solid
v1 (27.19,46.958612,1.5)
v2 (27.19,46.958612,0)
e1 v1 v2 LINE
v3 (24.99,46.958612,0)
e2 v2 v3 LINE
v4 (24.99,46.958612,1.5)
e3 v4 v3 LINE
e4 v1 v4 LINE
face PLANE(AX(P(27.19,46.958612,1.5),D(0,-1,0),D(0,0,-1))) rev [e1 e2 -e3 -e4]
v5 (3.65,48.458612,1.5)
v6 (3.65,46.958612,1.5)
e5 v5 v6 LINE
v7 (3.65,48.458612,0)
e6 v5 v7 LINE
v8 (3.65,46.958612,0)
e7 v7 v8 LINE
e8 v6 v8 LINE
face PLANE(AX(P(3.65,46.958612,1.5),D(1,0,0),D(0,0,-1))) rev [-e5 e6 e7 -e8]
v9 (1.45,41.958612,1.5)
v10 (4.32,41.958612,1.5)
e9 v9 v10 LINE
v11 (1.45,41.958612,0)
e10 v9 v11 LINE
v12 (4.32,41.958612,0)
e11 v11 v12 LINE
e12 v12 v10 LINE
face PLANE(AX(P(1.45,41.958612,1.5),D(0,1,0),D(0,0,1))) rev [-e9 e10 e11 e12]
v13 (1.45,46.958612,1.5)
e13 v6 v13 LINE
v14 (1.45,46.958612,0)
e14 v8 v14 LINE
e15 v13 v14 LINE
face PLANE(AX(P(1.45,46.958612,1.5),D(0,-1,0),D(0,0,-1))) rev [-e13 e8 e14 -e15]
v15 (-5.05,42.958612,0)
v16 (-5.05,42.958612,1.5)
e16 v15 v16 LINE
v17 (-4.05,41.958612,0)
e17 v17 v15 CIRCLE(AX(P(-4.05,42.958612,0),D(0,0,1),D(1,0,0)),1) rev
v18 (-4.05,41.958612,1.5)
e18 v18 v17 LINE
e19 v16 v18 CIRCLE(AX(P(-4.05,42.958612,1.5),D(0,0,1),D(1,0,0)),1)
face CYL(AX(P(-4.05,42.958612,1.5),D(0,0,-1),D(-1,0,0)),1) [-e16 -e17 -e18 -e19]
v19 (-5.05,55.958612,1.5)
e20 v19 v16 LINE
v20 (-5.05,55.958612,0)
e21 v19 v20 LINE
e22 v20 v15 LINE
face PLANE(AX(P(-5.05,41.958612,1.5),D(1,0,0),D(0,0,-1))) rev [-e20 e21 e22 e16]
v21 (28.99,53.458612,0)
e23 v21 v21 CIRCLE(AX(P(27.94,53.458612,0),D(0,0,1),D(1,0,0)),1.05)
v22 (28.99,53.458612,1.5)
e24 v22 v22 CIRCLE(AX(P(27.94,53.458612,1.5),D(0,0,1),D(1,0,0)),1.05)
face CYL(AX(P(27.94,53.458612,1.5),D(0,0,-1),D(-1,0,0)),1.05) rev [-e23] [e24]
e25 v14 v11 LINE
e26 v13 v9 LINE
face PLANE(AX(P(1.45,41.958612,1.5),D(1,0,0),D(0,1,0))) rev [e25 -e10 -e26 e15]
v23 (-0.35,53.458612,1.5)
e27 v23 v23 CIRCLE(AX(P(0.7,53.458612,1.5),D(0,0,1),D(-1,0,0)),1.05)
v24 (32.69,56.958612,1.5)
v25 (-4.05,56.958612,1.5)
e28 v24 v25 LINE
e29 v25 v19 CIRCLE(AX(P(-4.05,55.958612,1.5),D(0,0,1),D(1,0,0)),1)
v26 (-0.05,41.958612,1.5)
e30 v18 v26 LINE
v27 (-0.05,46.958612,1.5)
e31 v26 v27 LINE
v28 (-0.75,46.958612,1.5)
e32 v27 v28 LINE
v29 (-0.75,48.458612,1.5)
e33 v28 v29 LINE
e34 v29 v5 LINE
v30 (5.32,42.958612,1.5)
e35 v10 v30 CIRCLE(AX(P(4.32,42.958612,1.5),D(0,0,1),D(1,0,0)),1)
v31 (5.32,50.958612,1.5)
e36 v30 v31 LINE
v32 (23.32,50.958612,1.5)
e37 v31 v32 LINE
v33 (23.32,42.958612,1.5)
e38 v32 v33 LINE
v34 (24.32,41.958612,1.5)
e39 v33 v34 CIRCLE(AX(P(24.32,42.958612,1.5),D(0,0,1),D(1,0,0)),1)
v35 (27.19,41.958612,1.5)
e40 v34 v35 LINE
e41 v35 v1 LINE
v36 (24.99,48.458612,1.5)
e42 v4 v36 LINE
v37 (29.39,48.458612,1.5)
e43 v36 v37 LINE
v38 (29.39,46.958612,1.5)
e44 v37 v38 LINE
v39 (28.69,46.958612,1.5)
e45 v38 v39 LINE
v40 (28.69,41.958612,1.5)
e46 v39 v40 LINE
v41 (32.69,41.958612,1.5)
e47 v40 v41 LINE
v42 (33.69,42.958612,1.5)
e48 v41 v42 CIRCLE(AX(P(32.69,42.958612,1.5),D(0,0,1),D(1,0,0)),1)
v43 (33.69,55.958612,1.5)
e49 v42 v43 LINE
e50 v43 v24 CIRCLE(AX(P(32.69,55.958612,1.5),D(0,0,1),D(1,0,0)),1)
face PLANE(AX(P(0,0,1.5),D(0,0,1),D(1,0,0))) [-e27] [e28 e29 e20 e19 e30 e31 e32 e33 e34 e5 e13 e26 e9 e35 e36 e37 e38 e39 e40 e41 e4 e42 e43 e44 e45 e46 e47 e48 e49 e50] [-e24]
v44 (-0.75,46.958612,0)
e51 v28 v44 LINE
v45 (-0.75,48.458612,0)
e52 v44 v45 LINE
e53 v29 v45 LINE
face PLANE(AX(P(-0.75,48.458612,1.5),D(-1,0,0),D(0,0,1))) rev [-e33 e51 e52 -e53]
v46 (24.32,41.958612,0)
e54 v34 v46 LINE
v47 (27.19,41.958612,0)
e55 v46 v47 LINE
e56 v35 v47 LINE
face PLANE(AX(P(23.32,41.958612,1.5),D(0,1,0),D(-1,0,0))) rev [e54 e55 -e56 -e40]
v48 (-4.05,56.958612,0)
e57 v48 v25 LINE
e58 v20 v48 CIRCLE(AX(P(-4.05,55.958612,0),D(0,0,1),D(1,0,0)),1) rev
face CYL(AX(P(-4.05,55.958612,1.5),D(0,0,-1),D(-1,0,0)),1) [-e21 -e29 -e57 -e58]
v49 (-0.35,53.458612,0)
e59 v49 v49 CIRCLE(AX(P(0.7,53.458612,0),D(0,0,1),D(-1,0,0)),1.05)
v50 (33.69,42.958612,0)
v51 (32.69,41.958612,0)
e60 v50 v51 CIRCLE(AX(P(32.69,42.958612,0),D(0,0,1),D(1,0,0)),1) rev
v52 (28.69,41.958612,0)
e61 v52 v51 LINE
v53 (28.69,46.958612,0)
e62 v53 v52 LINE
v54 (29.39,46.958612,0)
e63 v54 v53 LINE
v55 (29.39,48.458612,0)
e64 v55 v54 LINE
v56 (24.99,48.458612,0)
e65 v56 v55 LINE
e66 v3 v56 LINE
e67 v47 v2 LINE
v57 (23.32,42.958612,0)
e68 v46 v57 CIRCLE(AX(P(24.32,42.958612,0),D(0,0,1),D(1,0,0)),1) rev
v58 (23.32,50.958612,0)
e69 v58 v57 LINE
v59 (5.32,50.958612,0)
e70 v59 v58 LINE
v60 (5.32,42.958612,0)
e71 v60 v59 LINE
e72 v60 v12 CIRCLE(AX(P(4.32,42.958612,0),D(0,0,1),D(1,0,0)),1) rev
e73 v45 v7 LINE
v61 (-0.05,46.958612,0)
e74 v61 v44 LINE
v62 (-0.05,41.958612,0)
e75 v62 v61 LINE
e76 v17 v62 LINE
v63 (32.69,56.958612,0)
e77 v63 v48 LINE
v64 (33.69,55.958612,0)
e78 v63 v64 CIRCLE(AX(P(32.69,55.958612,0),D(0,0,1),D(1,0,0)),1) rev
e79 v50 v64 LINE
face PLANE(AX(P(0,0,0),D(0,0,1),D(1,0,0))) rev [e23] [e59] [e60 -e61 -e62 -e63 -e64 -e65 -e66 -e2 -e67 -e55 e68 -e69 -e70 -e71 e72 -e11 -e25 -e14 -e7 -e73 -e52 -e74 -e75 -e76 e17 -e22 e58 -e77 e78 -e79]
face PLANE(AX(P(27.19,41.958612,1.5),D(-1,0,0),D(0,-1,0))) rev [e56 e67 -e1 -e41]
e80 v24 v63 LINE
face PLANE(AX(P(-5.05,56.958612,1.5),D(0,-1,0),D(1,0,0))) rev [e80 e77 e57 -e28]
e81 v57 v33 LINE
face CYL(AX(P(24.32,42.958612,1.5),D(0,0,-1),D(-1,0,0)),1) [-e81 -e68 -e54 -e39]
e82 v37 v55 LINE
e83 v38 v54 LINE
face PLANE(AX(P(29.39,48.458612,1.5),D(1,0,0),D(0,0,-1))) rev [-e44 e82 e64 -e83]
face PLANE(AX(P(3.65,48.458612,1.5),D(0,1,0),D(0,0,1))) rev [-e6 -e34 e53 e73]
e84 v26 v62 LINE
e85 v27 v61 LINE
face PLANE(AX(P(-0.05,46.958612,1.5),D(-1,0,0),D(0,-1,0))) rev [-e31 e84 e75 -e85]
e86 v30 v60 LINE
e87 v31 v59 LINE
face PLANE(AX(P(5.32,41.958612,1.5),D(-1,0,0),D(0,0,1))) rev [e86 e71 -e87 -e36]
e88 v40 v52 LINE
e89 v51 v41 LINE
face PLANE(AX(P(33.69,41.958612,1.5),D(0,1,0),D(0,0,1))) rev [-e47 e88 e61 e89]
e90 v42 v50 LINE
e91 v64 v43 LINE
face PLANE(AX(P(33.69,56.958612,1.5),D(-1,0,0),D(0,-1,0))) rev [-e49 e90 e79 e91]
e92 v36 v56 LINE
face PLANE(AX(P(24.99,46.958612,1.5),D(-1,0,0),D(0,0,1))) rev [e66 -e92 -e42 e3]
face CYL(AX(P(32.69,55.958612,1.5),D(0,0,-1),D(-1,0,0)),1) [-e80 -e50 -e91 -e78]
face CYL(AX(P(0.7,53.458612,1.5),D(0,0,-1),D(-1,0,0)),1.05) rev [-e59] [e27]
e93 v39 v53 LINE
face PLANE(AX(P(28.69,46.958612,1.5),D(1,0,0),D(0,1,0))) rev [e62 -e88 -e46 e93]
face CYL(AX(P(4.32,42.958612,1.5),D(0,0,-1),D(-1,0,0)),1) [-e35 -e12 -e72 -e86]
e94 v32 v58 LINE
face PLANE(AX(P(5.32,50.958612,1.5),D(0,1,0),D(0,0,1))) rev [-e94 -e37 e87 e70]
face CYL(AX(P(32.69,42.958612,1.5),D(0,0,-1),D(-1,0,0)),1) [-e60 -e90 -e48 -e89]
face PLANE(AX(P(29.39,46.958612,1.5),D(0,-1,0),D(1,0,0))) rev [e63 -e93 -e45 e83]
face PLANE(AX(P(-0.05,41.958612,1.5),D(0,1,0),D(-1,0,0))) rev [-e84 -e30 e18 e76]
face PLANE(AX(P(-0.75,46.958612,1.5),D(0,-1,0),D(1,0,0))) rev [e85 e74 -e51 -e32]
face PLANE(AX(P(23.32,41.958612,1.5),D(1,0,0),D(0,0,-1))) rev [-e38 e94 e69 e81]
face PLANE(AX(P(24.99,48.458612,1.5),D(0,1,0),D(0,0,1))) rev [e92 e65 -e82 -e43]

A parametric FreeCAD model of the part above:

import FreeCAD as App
import Part
import Sketcher
Q = App.Units.Quantity


def edges_at(feature, points):
    """Names of the edges that pass closest to the given points."""
    edges = feature.Shape.Edges
    near = lambda p: min(range(len(edges)), key=lambda i: edges[i].distToShape(Part.Vertex(*p))[0])
    return sorted({f"Edge{near(p) + 1}" for p in points})


def add_polygon(sketch, points):
    """Adds a closed chain of lines whose ends are joined by coincident constraints."""
    first, n = sketch.GeometryCount, len(points)
    for a, b in zip(points, points[1:] + points[:1]):
        sketch.addGeometry(Part.LineSegment(App.Vector(*a, 0), App.Vector(*b, 0)), False)
    for i in range(n):
        sketch.addConstraint(Sketcher.Constraint("Coincident", first + i, 2, first + (i + 1) % n, 1))

doc = App.newDocument("Part")
body = doc.addObject("PartDesign::Body", "Body")

# Sketch on XY plane
sketch1 = body.newObject("Sketcher::SketchObject", "Sketch")
sketch1.AttachmentSupport = (doc.getObject("XY_Plane"), [""])
sketch1.MapMode = "FlatFace"
add_polygon(sketch1, [(23.32, 41.958612), (27.19, 41.958612), (27.19, 46.958612), (24.99, 46.958612), (24.99, 48.458612), (29.39, 48.458612), (29.39, 46.958612), (28.69, 46.958612), (28.69, 41.958612), (33.69, 41.958612), (33.69, 56.958612), (-5.05, 56.958612), (-5.05, 41.958612), (-0.05, 41.958612), (-0.05, 46.958612), (-0.75, 46.958612), (-0.75, 48.458612), (3.65, 48.458612), (3.65, 46.958612), (1.45, 46.958612), (1.45, 41.958612), (5.32, 41.958612), (5.32, 50.958612), (23.32, 50.958612)])  # lines 0-23
sketch1.addGeometry(Part.Circle(App.Vector(0.7, 53.458612, 0), App.Vector(0, 0, 1), 1.05), False)  # 24
sketch1.addGeometry(Part.Circle(App.Vector(27.94, 53.458612, 0), App.Vector(0, 0, 1), 1.05), False)  # 25
sketch1.addConstraint([
    Sketcher.Constraint("Horizontal", 0),
    Sketcher.Constraint("Vertical", 1),
    Sketcher.Constraint("Horizontal", 2),
    Sketcher.Constraint("Vertical", 3),
    Sketcher.Constraint("Horizontal", 4),
    Sketcher.Constraint("Vertical", 5),
    Sketcher.Constraint("Horizontal", 6),
    Sketcher.Constraint("Vertical", 7),
    Sketcher.Constraint("Horizontal", 8),
    Sketcher.Constraint("Vertical", 9),
    Sketcher.Constraint("Horizontal", 10),
    Sketcher.Constraint("Vertical", 11),
    Sketcher.Constraint("Horizontal", 12),
    Sketcher.Constraint("Vertical", 13),
    Sketcher.Constraint("Horizontal", 14),
    Sketcher.Constraint("Vertical", 15),
    Sketcher.Constraint("Horizontal", 16),
    Sketcher.Constraint("Vertical", 17),
    Sketcher.Constraint("Horizontal", 18),
    Sketcher.Constraint("Vertical", 19),
    Sketcher.Constraint("Horizontal", 20),
    Sketcher.Constraint("Vertical", 21),
    Sketcher.Constraint("Horizontal", 22),
    Sketcher.Constraint("Vertical", 23),
    Sketcher.Constraint("Equal", 24, 25),
    Sketcher.Constraint("Horizontal", 24, 3, 25, 3),
    Sketcher.Constraint("Horizontal", 2, 2, 5, 2),
    Sketcher.Constraint("Horizontal", 0, 2, 7, 2),
    Sketcher.Constraint("Horizontal", 8, 2, 11, 2),
    Sketcher.Constraint("Horizontal", 6, 2, 13, 2),
    Sketcher.Constraint("Horizontal", 4, 2, 15, 2),
    Sketcher.Constraint("Horizontal", 14, 2, 17, 2),
    Sketcher.Constraint("Horizontal", 12, 2, 19, 2),
    Sketcher.Constraint("Equal", 8, 12),
    Sketcher.Constraint("Equal", 6, 14),
    Sketcher.Constraint("Equal", 4, 16),
    Sketcher.Constraint("Equal", 2, 18),
    Sketcher.Constraint("Equal", 0, 20),
    Sketcher.Constraint("Equal", 12, 1),
    Sketcher.Constraint("Diameter", 24, Q("2.1 mm")),
    Sketcher.Constraint("DistanceX", 8, 1, 8, 2, Q("5 mm")),
    Sketcher.Constraint("DistanceX", 22, 1, 22, 2, Q("18 mm")),
    Sketcher.Constraint("DistanceY", 9, 1, 9, 2, Q("15 mm")),
    Sketcher.Constraint("DistanceY", 21, 1, 21, 2, Q("9 mm")),
    Sketcher.Constraint("DistanceX", 2, 2, 2, 1, Q("2.2 mm")),
    Sketcher.Constraint("DistanceX", 4, 1, 4, 2, Q("4.4 mm")),
    Sketcher.Constraint("DistanceX", 6, 2, 6, 1, Q("0.7 mm")),
    Sketcher.Constraint("DistanceY", 3, 1, 3, 2, Q("1.5 mm")),
    Sketcher.Constraint("DistanceY", 3, 2, 25, 3, Q("5 mm")),
    Sketcher.Constraint("DistanceX", 0, 1, 0, 2, Q("3.87 mm")),
    Sketcher.Constraint("DistanceX", -1, 1, 24, 3, Q("0.7 mm")),
    Sketcher.Constraint("DistanceX", -1, 1, 25, 3, Q("27.94 mm")),
    Sketcher.Constraint("DistanceX", -1, 1, 0, 2, Q("27.19 mm")),
    Sketcher.Constraint("DistanceY", -1, 1, 24, 3, Q("53.458612 mm")),
])
pad1 = body.newObject("PartDesign::Pad", "Pad")
pad1.Profile = sketch1
pad1.Length = 1.5
doc.recompute()

fillet = body.newObject("PartDesign::Fillet", "Fillet")
fillet.Base = (pad1, edges_at(pad1, [
    (-5.05, 41.959, 0.75),
    (-5.05, 56.959, 0.75),
    (33.69, 56.959, 0.75),
    (33.69, 41.959, 0.75),
    (23.32, 41.959, 0.75),
    (5.32, 41.959, 0.75),
]))
fillet.Radius = 1

doc.recompute()
